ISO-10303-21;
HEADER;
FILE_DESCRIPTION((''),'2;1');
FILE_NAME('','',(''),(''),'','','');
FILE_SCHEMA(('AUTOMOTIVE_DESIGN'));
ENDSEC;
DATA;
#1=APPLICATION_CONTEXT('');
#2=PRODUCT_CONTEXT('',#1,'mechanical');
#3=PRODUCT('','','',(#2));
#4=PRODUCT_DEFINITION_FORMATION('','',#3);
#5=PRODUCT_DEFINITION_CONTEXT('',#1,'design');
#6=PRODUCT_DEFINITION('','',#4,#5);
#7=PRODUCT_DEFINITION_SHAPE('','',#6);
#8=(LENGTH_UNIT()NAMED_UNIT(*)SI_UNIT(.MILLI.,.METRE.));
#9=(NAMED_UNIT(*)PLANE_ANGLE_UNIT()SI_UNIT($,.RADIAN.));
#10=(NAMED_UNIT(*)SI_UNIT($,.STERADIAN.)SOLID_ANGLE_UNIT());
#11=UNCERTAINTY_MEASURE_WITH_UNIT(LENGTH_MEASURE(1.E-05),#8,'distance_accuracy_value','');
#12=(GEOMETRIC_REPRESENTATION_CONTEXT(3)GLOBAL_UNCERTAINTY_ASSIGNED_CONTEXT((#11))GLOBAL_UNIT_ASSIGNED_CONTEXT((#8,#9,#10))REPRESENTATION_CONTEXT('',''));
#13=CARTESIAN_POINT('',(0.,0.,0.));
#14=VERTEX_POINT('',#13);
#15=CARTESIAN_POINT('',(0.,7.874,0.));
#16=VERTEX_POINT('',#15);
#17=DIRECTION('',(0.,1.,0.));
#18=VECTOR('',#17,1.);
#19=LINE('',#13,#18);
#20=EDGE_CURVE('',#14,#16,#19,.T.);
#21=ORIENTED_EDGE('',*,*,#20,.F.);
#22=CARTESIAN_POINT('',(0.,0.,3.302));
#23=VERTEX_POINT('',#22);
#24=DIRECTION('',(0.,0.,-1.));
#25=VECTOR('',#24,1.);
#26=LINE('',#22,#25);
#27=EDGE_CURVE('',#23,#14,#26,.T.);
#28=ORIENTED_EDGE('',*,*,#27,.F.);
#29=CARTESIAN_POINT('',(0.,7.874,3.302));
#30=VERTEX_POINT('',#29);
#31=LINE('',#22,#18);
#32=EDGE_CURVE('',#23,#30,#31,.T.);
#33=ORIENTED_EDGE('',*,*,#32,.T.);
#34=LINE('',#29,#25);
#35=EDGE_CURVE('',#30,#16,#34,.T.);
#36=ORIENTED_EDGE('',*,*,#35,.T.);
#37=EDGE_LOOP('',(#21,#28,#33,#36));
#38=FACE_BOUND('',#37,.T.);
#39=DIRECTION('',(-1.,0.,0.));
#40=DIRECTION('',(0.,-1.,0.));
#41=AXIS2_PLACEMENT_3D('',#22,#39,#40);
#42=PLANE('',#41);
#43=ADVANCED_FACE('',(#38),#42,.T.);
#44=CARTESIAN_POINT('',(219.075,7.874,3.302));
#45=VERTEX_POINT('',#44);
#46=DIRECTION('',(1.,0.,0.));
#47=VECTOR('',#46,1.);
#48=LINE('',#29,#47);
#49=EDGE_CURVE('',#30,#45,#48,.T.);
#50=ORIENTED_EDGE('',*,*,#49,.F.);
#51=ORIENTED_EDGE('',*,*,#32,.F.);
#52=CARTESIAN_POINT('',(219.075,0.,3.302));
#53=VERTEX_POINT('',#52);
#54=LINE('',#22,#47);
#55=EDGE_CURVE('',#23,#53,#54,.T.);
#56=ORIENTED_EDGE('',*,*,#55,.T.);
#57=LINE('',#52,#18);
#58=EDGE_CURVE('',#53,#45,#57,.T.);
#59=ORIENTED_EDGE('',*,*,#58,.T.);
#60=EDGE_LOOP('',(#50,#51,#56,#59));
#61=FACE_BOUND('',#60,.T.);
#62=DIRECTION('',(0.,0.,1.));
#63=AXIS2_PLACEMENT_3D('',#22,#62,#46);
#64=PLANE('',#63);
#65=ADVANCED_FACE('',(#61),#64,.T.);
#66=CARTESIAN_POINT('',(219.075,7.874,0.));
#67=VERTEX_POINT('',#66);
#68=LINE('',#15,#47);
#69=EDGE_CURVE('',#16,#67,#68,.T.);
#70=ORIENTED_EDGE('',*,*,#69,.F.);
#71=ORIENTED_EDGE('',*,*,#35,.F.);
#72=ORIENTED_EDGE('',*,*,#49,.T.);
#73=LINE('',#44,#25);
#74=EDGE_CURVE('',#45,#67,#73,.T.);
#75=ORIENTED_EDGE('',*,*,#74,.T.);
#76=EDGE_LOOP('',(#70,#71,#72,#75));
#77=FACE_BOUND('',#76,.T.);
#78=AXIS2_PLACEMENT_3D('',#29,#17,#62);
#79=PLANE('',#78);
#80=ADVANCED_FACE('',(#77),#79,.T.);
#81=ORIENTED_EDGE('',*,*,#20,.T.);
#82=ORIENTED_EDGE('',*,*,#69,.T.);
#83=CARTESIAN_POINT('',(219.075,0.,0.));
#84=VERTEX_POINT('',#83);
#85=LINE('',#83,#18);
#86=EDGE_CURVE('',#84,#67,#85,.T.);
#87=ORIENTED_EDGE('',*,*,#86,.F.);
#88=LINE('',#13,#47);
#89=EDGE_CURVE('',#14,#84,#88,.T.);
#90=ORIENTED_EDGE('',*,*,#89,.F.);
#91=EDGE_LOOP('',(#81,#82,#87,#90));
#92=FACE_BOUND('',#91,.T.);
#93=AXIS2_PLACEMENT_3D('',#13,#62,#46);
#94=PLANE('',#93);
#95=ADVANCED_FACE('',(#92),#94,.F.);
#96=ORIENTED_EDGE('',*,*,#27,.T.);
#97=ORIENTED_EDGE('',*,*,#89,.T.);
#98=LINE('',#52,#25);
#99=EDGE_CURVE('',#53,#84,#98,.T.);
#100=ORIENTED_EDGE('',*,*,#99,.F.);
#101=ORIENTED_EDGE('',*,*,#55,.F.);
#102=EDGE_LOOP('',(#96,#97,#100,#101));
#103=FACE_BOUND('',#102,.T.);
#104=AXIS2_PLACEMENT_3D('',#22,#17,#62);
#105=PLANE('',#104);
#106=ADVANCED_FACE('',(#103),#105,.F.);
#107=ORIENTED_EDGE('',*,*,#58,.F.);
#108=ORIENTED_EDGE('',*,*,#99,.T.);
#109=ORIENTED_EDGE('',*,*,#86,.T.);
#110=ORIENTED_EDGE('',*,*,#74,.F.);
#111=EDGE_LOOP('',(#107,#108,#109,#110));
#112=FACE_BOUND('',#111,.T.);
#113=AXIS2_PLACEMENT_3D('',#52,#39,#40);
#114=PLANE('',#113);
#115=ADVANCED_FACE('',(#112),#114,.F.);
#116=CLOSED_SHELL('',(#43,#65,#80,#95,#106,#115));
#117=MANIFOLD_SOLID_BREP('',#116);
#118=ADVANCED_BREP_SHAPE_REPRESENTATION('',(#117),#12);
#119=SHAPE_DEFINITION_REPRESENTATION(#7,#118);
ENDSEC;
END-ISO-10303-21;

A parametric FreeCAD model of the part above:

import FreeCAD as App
import Part
import Sketcher

V = App.Vector
Q = App.Units.Quantity

doc = App.newDocument("Part")
body = doc.addObject("PartDesign::Body", "Body")

sketch1 = body.newObject("Sketcher::SketchObject", "Sketch")
sketch1.AttachmentSupport = (doc.getObject("XY_Plane"), [""])
sketch1.MapMode = "FlatFace"
sketch1.addGeometry([
    Part.LineSegment(V(0, 8, 0), V(0, 0, 0)),
    Part.LineSegment(V(0, 0, 0), V(219, 0, 0)),
    Part.LineSegment(V(219, 0, 0), V(219, 8, 0)),
    Part.LineSegment(V(219, 8, 0), V(0, 8, 0)),
], False)
sketch1.addConstraint([
    Sketcher.Constraint("Coincident", 0, 2, 1, 1),
    Sketcher.Constraint("Coincident", 1, 2, 2, 1),
    Sketcher.Constraint("Coincident", 2, 2, 3, 1),
    Sketcher.Constraint("Coincident", 3, 2, 0, 1),
    Sketcher.Constraint("Vertical", 0),
    Sketcher.Constraint("Horizontal", 1),
    Sketcher.Constraint("Vertical", 2),
    Sketcher.Constraint("Horizontal", 3),
    Sketcher.Constraint("Coincident", 0, 2, -1, 1),
    Sketcher.Constraint("DistanceY", 0, 2, 0, 1, Q("0.31 in")),
    Sketcher.Constraint("DistanceX", 1, 1, 1, 2, Q("8.625 in")),
])
pad1 = body.newObject("PartDesign::Pad", "Pad")
pad1.Profile = sketch1
pad1.Length = Q("0.13 in")

doc.recompute()
